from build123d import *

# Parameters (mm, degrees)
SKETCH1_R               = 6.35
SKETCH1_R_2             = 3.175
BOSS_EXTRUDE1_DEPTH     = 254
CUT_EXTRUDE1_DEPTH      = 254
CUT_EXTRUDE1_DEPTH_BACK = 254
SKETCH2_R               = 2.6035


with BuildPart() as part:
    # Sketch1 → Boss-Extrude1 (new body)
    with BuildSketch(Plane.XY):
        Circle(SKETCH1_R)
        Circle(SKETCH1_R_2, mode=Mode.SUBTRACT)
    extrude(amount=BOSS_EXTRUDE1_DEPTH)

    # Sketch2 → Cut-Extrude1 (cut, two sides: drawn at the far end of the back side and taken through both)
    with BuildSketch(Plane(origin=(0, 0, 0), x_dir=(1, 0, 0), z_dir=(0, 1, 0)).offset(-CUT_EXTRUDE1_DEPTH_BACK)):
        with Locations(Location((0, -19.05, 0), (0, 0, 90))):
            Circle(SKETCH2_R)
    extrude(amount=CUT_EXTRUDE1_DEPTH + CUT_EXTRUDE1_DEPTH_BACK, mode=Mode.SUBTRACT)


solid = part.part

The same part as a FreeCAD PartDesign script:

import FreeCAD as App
import Part
import Sketcher
Q = App.Units.Quantity

doc = App.newDocument("Part")
body = doc.addObject("PartDesign::Body", "Body")

# Sketch on XY plane
sketch1 = doc.addObject("Sketcher::SketchObject", "Sketch")
body.addObject(sketch1)
sketch1.AttachmentSupport = (doc.XY_Plane, [""])
sketch1.MapMode = "FlatFace"
sketch1.addGeometry(Part.Circle(App.Vector(0, 0, 0), App.Vector(0, 0, 1), 6.3), False)
sketch1.addGeometry(Part.Circle(App.Vector(0, 0, 0), App.Vector(0, 0, 1), 3.2), False)
sketch1.addConstraint(Sketcher.Constraint("Coincident", 0, 3, -1, 1))
sketch1.addConstraint(Sketcher.Constraint("Coincident", 1, 3, -1, 1))
sketch1.addConstraint(Sketcher.Constraint("Diameter", 0, Q("0.5 in")))
sketch1.addConstraint(Sketcher.Constraint("Diameter", 1, Q("0.25 in")))
pad1 = doc.addObject("PartDesign::Pad", "Pad")
body.addObject(pad1)
pad1.Profile = sketch1
pad1.Length = Q("10 in")

# Sketch on XZ plane
sketch2 = doc.addObject("Sketcher::SketchObject", "Sketch001")
body.addObject(sketch2)
sketch2.AttachmentSupport = (doc.XZ_Plane, [""])
sketch2.MapMode = "FlatFace"
sketch2.addGeometry(Part.Circle(App.Vector(0, 19.1, 0), App.Vector(0, 0, 1), 2.6), False)
sketch2.addConstraint(Sketcher.Constraint("PointOnObject", 0, 3, -2))
sketch2.addConstraint(Sketcher.Constraint("Diameter", 0, Q("0.205 in")))
sketch2.addConstraint(Sketcher.Constraint("DistanceY", -1, 1, 0, 3, Q("0.75 in")))
pocket1 = doc.addObject("PartDesign::Pocket", "Pocket")
body.addObject(pocket1)
pocket1.Profile = sketch2
pocket1.Type = "ThroughAll"
pocket1.Midplane = True

doc.recompute()
